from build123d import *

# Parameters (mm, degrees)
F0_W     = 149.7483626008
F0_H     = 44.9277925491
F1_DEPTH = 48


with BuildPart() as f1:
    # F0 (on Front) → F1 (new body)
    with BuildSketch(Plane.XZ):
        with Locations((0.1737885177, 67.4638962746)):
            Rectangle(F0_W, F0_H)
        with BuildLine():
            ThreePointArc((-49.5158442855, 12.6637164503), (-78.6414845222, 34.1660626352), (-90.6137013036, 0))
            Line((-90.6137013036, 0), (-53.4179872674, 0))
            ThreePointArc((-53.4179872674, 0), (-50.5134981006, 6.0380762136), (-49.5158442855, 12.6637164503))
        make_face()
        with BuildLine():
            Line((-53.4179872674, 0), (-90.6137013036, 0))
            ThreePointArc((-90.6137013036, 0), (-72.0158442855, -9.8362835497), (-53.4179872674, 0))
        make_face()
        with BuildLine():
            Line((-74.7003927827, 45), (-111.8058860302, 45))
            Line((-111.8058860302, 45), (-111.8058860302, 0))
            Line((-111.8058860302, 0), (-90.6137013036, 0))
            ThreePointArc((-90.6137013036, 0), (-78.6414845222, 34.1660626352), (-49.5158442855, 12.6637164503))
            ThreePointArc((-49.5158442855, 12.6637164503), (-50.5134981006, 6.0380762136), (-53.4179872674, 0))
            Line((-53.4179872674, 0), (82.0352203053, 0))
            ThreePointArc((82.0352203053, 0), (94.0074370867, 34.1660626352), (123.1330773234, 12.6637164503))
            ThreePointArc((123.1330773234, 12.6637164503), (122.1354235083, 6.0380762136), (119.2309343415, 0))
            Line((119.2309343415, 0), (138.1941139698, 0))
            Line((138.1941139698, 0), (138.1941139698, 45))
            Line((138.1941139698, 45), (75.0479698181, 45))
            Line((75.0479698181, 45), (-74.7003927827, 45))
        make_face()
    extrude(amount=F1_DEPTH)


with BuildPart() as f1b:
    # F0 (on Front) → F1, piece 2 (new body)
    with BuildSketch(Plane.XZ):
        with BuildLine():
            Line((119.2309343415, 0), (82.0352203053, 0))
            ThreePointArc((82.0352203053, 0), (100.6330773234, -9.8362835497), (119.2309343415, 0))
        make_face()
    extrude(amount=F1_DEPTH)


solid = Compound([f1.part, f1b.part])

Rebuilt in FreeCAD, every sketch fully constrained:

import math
import FreeCAD as App
import Part
import Sketcher
from FreeCAD import Vector
Q = App.Units.Quantity

doc = App.newDocument("Part")
body = doc.addObject("PartDesign::Body", "Body")

sketch1 = body.newObject("Sketcher::SketchObject", "Sketch")
sketch1.AttachmentSupport = (doc.getObject("XZ_Plane"), [""])
sketch1.MapMode = "FlatFace"
sketch1.addGeometry([
    Part.LineSegment(Vector(-74.700393, 89.927793, 0), Vector(-74.700393, 45, 0)),
    Part.LineSegment(Vector(-74.700393, 45, 0), Vector(-111.805886, 45, 0)),
    Part.LineSegment(Vector(-111.805886, 45, 0), Vector(-111.805886, 0, 0)),
    Part.LineSegment(Vector(-111.805886, 0, 0), Vector(-90.613701, 0, 0)),
    Part.ArcOfCircle(Part.Circle(Vector(-72.015844, 12.663716, 0), Vector(0, 0, 1), 22.5), math.radians(-145.748134), math.radians(-34.251866)),
    Part.LineSegment(Vector(-53.417987, 0, 0), Vector(82.03522, 0, 0)),
    Part.ArcOfCircle(Part.Circle(Vector(100.633077, 12.663716, 0), Vector(0, 0, 1), 22.5), math.radians(0), math.radians(214.251866)),
    Part.ArcOfCircle(Part.Circle(Vector(100.633077, 12.663716, 0), Vector(0, 0, 1), 22.5), math.radians(-34.251866), math.radians(0)),
    Part.LineSegment(Vector(119.230934, 0, 0), Vector(138.194114, 0, 0)),
    Part.LineSegment(Vector(138.194114, 0, 0), Vector(138.194114, 45, 0)),
    Part.LineSegment(Vector(138.194114, 45, 0), Vector(75.04797, 45, 0)),
    Part.LineSegment(Vector(75.04797, 45, 0), Vector(75.04797, 89.927793, 0)),
    Part.LineSegment(Vector(75.04797, 89.927793, 0), Vector(-74.700393, 89.927793, 0)),
], False)
sketch1.addConstraint([
    Sketcher.Constraint("Coincident", 0, 2, 1, 1),
    Sketcher.Constraint("Coincident", 1, 2, 2, 1),
    Sketcher.Constraint("Coincident", 2, 2, 3, 1),
    Sketcher.Constraint("Coincident", 3, 2, 4, 1),
    Sketcher.Constraint("Coincident", 4, 2, 5, 1),
    Sketcher.Constraint("Coincident", 5, 2, 6, 2),
    Sketcher.Constraint("Tangent", 6, 1, 7, 2),
    Sketcher.Constraint("Coincident", 7, 1, 8, 1),
    Sketcher.Constraint("Coincident", 8, 2, 9, 1),
    Sketcher.Constraint("Coincident", 9, 2, 10, 1),
    Sketcher.Constraint("Coincident", 10, 2, 11, 1),
    Sketcher.Constraint("Coincident", 11, 2, 12, 1),
    Sketcher.Constraint("Coincident", 12, 2, 0, 1),
    Sketcher.Constraint("Vertical", 0),
    Sketcher.Constraint("Horizontal", 1),
    Sketcher.Constraint("Vertical", 2),
    Sketcher.Constraint("Horizontal", 3),
    Sketcher.Constraint("Horizontal", 5),
    Sketcher.Constraint("Horizontal", 8),
    Sketcher.Constraint("Vertical", 9),
    Sketcher.Constraint("Horizontal", 10),
    Sketcher.Constraint("Vertical", 11),
    Sketcher.Constraint("Horizontal", 12),
    Sketcher.Constraint("Equal", 4, 6),
    Sketcher.Constraint("Equal", 6, 7),
    Sketcher.Constraint("PointOnObject", 2, 2, -1),
    Sketcher.Constraint("PointOnObject", 4, 2, -1),
    Sketcher.Constraint("PointOnObject", 7, 1, -1),
    Sketcher.Constraint("Horizontal", 4, 3, 6, 3),
    Sketcher.Constraint("Horizontal", 7, 3, 6, 1),
    Sketcher.Constraint("Horizontal", 1, 2, 9, 2),
    Sketcher.Constraint("Radius", 4, Q("22.5 mm")),
    Sketcher.Constraint("DistanceY", 2, 2, 2, 1, Q("45 mm")),
    Sketcher.Constraint("DistanceX", 8, 1, 8, 2, Q("18.96318 mm")),
    Sketcher.Constraint("DistanceX", 3, 2, -1, 1, Q("90.613701 mm")),
    Sketcher.Constraint("DistanceX", 2, 2, 4, 2, Q("58.387899 mm")),
    Sketcher.Constraint("DistanceX", 1, 2, 1, 1, Q("37.105493 mm")),
    Sketcher.Constraint("DistanceX", 3, 1, 3, 2, Q("21.192185 mm")),
    Sketcher.Constraint("DistanceX", 5, 1, 5, 2, Q("135.453208 mm")),
    Sketcher.Constraint("DistanceX", 10, 2, 10, 1, Q("63.146144 mm")),
    Sketcher.Constraint("DistanceY", 0, 2, 0, 1, Q("44.927793 mm")),
])
pad1 = body.newObject("PartDesign::Pad", "Pad")
pad1.Profile = sketch1
pad1.Length = 48
body2 = doc.addObject("PartDesign::Body", "Body001")

sketch2 = body2.newObject("Sketcher::SketchObject", "Sketch001")
sketch2.AttachmentSupport = (doc.getObject("XZ_Plane001"), [""])
sketch2.MapMode = "FlatFace"
sketch2.addGeometry([
    Part.LineSegment(Vector(119.230934, 0, 0), Vector(82.03522, 0, 0)),
    Part.ArcOfCircle(Part.Circle(Vector(100.633077, 12.663716, 0), Vector(0, 0, 1), 22.5), math.radians(-145.748134), math.radians(-34.251866)),
], False)
sketch2.addConstraint([
    Sketcher.Constraint("Coincident", 0, 1, 1, 2),
    Sketcher.Constraint("Coincident", 1, 1, 0, 2),
    Sketcher.Constraint("Horizontal", 0),
    Sketcher.Constraint("PointOnObject", 0, 1, -1),
    Sketcher.Constraint("Radius", 1, Q("22.5 mm")),
    Sketcher.Constraint("DistanceX", 0, 2, 0, 1, Q("37.195714 mm")),
    Sketcher.Constraint("DistanceX", -1, 1, 1, 1, Q("82.03522 mm")),
])
pad2 = body2.newObject("PartDesign::Pad", "Pad001")
pad2.Profile = sketch2
pad2.Length = 48

doc.recompute()
